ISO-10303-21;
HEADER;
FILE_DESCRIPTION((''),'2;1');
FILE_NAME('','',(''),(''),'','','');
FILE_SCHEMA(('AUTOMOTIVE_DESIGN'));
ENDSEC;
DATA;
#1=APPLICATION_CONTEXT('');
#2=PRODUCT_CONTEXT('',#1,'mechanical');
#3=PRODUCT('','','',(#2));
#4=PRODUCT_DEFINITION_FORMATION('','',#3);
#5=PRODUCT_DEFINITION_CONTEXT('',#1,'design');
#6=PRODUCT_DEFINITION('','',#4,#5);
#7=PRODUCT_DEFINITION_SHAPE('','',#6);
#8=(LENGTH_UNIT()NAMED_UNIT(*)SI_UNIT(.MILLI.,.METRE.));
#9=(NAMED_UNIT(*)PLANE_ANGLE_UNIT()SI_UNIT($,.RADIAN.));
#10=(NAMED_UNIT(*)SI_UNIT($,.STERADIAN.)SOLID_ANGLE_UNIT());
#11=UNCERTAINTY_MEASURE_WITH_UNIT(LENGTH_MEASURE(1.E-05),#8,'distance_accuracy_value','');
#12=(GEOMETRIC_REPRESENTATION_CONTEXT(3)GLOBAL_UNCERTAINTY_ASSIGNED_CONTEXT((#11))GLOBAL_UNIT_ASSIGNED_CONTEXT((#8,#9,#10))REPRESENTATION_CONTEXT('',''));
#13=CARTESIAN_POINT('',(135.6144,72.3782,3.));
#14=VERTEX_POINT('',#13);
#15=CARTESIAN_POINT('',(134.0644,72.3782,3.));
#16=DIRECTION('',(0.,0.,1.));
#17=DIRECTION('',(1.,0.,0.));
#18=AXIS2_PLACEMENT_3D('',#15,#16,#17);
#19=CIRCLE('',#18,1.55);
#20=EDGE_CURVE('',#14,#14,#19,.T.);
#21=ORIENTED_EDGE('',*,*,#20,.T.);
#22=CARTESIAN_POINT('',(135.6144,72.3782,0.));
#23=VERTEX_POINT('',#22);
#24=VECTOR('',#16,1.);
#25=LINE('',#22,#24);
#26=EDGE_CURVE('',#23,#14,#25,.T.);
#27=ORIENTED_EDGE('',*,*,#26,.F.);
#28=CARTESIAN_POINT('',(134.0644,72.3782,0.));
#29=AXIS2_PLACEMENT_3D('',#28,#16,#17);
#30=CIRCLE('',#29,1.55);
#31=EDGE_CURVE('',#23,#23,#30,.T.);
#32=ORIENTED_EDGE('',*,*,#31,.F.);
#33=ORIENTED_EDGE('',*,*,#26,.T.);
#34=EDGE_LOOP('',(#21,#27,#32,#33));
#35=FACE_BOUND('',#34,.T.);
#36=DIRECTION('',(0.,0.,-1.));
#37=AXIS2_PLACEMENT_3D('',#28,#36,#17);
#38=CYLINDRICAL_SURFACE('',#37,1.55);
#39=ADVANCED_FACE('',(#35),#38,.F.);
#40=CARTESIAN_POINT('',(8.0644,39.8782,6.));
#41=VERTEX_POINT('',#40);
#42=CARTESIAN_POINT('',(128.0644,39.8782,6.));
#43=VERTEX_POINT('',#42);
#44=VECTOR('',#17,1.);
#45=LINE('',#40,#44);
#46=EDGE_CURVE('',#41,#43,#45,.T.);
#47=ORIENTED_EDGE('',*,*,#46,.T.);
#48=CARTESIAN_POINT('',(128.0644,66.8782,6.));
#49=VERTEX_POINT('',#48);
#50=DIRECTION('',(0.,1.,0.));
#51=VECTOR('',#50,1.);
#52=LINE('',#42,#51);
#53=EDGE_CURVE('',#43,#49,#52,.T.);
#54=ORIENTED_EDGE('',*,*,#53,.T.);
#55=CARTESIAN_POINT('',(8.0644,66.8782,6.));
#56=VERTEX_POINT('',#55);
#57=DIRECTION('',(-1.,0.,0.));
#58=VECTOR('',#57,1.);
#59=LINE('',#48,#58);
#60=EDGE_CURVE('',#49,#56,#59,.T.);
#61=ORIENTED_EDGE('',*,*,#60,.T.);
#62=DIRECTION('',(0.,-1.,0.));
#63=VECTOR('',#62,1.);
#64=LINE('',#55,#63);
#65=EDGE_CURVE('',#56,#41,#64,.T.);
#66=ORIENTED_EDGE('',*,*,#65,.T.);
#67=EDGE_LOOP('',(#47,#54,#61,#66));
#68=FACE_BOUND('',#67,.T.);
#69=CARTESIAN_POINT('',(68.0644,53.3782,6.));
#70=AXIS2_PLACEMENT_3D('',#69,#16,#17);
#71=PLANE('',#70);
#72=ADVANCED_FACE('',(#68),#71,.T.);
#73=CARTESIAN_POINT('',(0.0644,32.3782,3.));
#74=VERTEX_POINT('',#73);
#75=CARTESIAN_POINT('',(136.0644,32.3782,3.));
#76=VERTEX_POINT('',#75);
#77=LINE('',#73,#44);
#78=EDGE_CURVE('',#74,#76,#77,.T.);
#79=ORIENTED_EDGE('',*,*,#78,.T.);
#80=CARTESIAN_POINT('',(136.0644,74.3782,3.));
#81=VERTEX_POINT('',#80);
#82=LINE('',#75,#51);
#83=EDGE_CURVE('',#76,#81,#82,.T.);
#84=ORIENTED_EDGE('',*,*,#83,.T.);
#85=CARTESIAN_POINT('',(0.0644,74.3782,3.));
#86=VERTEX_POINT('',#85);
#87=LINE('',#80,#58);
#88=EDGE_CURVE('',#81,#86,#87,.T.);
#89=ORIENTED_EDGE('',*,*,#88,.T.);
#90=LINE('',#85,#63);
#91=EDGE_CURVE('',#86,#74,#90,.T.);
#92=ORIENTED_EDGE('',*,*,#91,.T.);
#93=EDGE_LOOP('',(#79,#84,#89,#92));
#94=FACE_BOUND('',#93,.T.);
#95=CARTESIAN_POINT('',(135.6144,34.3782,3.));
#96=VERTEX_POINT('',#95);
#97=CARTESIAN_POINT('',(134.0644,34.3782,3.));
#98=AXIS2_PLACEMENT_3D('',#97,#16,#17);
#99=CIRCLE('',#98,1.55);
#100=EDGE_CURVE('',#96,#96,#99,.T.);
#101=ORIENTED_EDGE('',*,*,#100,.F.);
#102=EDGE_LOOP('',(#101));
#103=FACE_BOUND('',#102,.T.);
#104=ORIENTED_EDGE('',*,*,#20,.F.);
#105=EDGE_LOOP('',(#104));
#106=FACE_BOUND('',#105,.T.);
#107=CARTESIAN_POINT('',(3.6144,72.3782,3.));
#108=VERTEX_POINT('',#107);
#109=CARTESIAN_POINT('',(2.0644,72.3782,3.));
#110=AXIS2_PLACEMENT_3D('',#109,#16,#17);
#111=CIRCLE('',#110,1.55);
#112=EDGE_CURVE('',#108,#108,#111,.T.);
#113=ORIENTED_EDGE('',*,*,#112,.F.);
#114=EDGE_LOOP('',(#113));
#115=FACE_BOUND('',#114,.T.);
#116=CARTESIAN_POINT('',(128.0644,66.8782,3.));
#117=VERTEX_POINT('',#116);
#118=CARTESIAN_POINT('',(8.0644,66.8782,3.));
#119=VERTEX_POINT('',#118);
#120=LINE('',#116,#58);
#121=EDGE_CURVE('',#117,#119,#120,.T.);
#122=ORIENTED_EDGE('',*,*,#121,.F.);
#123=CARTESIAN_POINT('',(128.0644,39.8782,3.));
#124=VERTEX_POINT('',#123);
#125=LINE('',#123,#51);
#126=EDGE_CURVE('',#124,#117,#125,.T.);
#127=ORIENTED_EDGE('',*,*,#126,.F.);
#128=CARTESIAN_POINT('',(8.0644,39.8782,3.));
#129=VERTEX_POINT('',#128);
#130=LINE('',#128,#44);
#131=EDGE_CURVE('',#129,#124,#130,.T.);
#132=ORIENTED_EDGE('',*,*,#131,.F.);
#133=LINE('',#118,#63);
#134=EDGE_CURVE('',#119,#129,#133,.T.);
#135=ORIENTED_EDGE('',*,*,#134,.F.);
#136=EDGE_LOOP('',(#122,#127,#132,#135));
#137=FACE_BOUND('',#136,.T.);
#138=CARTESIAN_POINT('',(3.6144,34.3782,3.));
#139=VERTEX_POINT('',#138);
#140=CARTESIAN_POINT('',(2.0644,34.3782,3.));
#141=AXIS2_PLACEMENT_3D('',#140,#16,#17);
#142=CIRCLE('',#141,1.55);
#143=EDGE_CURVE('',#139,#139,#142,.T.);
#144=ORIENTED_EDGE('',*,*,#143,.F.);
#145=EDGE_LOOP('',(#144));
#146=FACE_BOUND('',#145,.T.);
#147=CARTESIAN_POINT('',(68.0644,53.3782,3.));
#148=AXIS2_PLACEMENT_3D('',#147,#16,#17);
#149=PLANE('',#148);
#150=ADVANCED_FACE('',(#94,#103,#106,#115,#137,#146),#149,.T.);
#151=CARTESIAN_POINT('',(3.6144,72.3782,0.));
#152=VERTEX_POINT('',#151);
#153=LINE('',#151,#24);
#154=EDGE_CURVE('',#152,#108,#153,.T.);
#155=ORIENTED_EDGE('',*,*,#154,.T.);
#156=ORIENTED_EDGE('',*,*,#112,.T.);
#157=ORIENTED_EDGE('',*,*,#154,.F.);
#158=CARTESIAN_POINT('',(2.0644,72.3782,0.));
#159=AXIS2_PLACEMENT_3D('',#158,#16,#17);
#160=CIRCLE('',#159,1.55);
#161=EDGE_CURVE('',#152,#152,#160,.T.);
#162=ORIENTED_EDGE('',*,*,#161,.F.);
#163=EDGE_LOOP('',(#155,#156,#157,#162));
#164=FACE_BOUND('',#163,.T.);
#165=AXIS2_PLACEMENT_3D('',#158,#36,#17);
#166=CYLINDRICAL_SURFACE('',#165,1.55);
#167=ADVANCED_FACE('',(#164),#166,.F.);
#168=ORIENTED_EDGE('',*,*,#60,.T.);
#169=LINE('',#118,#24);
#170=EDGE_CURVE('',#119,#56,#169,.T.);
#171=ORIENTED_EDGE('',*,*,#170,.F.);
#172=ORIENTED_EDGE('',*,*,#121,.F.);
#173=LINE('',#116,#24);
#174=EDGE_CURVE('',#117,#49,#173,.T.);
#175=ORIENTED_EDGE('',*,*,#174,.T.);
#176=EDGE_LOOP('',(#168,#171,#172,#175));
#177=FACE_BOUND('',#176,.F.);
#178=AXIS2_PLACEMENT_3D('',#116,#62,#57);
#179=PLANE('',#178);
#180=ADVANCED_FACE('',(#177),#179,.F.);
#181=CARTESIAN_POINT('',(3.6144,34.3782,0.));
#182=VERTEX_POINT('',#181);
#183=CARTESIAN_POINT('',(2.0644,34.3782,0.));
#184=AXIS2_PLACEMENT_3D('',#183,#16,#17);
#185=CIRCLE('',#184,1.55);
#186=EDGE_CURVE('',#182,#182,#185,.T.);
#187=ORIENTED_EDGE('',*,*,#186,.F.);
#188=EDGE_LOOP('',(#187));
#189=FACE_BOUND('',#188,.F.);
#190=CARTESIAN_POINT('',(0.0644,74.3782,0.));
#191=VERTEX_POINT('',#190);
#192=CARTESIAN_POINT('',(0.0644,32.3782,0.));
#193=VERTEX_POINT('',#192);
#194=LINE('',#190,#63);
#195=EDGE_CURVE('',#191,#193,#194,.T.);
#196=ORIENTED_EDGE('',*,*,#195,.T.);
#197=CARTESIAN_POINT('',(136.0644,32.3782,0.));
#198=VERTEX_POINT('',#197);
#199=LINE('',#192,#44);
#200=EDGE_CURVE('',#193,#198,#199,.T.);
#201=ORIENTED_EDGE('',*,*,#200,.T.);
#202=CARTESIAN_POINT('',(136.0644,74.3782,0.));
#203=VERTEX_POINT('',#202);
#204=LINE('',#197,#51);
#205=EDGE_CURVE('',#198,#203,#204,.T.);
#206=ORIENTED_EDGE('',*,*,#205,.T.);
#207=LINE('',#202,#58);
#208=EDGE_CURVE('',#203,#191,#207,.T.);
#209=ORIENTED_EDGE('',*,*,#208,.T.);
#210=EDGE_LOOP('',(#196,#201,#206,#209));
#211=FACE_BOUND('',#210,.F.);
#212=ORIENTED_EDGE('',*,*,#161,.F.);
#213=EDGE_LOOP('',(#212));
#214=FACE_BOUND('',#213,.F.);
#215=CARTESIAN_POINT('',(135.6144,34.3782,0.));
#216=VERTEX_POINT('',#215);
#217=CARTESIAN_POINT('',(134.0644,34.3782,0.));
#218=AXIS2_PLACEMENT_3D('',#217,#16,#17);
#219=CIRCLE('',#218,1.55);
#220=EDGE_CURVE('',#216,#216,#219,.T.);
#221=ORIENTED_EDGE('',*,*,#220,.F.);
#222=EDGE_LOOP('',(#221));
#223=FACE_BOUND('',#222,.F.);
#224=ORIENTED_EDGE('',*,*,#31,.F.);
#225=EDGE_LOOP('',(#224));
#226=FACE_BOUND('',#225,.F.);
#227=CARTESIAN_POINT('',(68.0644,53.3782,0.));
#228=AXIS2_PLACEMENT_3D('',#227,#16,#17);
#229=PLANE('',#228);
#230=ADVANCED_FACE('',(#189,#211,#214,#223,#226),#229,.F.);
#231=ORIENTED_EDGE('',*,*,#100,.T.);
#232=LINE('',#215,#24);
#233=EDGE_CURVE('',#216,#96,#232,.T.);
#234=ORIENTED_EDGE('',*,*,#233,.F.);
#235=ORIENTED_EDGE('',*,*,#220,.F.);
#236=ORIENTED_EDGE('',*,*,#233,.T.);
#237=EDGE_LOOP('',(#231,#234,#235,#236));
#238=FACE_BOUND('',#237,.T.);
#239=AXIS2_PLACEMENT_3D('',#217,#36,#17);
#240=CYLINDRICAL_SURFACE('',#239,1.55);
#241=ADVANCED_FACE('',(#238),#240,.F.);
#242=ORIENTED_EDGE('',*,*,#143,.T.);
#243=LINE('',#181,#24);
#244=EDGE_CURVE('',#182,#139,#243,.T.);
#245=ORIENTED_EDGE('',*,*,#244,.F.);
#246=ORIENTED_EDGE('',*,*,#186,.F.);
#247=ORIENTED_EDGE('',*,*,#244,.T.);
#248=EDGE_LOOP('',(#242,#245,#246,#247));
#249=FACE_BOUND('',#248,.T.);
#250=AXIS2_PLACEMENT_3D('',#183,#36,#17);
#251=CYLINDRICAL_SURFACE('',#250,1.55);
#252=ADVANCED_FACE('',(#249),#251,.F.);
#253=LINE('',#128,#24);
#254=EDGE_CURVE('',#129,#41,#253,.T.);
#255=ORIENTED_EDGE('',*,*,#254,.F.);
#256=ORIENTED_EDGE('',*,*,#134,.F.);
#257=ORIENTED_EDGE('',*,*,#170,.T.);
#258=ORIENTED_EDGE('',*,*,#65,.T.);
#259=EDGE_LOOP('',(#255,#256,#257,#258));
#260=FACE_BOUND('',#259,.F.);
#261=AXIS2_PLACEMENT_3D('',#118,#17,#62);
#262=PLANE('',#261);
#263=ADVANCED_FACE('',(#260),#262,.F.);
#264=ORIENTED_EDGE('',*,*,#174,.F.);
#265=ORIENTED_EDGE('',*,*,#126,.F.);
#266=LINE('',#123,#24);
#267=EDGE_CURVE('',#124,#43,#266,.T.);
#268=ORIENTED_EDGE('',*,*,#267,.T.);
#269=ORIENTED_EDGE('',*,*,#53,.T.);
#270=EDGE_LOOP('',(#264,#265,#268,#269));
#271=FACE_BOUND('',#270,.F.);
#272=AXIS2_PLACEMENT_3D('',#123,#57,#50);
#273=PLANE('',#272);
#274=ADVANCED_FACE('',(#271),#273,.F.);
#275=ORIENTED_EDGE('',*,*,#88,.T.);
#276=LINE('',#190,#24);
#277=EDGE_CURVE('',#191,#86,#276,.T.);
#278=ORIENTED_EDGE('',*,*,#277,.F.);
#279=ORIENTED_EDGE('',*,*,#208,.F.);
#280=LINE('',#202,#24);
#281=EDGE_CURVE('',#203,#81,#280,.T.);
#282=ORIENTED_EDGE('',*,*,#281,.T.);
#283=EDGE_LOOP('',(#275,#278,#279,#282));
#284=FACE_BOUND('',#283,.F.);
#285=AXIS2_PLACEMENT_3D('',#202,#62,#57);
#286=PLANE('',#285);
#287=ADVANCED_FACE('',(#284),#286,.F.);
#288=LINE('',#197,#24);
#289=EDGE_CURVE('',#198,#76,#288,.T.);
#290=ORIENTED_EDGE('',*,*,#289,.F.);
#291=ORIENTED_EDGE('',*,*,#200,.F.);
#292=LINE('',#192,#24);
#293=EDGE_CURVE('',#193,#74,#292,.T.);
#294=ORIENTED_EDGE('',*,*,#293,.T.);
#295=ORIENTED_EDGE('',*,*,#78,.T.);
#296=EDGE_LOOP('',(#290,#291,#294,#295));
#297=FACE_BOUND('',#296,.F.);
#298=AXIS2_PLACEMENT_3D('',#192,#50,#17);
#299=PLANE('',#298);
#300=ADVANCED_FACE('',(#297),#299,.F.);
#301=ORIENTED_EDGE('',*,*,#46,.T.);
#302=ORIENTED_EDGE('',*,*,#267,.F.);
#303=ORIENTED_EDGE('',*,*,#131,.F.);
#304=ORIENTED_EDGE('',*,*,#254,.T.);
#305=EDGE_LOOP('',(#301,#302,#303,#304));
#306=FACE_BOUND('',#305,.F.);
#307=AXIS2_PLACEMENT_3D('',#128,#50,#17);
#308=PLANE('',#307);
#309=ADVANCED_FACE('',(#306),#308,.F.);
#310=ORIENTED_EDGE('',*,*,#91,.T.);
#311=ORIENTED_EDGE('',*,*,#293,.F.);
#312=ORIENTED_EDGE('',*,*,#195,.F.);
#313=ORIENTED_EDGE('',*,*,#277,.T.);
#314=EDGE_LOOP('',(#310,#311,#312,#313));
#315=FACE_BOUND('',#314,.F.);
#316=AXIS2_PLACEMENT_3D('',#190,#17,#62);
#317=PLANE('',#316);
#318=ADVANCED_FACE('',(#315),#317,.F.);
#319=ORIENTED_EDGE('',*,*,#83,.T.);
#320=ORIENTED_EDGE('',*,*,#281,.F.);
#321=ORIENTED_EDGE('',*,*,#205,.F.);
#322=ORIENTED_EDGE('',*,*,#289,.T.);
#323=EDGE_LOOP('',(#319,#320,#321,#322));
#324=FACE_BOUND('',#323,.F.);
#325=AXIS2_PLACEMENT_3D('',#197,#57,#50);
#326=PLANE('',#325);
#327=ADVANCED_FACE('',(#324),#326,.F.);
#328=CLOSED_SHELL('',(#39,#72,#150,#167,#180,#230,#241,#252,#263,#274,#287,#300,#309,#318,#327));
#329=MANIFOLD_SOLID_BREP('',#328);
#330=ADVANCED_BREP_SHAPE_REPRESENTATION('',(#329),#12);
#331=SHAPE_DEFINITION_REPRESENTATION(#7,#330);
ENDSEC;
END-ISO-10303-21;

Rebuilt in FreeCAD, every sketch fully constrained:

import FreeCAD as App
import Part
import Sketcher

V = App.Vector
Q = App.Units.Quantity

doc = App.newDocument("Part")
body = doc.addObject("PartDesign::Body", "Body")

# Sketch on XY plane
sketch1 = body.newObject("Sketcher::SketchObject", "Sketch")
sketch1.AttachmentSupport = (doc.getObject("XY_Plane"), [""])
sketch1.MapMode = "FlatFace"
sketch1.addGeometry([
    Part.LineSegment(V(136.1, 32.4, 0), V(136.1, 74.4, 0)),  # 0
    Part.LineSegment(V(136.1, 74.4, 0), V(0.1, 74.4, 0)),  # 1
    Part.LineSegment(V(0.1, 74.4, 0), V(0.1, 32.4, 0)),  # 2
    Part.LineSegment(V(0.1, 32.4, 0), V(136.1, 32.4, 0)),  # 3
    Part.Circle(V(2.1, 34.4, 0), V(0, 0, 1), 1.6),  # 4
    Part.Circle(V(134.1, 34.4, 0), V(0, 0, 1), 1.6),  # 5
    Part.Circle(V(2.1, 72.4, 0), V(0, 0, 1), 1.6),  # 6
    Part.Circle(V(134.1, 72.4, 0), V(0, 0, 1), 1.6),  # 7
], False)
sketch1.addConstraint([
    Sketcher.Constraint("Coincident", 0, 2, 1, 1),
    Sketcher.Constraint("Coincident", 1, 2, 2, 1),
    Sketcher.Constraint("Coincident", 2, 2, 3, 1),
    Sketcher.Constraint("Coincident", 3, 2, 0, 1),
    Sketcher.Constraint("Vertical", 0),
    Sketcher.Constraint("Horizontal", 1),
    Sketcher.Constraint("Vertical", 2),
    Sketcher.Constraint("Horizontal", 3),
    Sketcher.Constraint("Equal", 4, 5),
    Sketcher.Constraint("Equal", 5, 6),
    Sketcher.Constraint("Equal", 6, 7),
    Sketcher.Constraint("Horizontal", 4, 3, 5, 3),
    Sketcher.Constraint("Horizontal", 6, 3, 7, 3),
    Sketcher.Constraint("Vertical", 4, 3, 6, 3),
    Sketcher.Constraint("Vertical", 5, 3, 7, 3),
    Sketcher.Constraint("Diameter", 4, Q("3.1 mm")),
    Sketcher.Constraint("DistanceX", 1, 2, 1, 1, Q("136 mm")),
    Sketcher.Constraint("DistanceY", 0, 1, 0, 2, Q("42 mm")),
    Sketcher.Constraint("DistanceX", 4, 3, 5, 3, Q("132 mm")),
    Sketcher.Constraint("DistanceY", 4, 3, 6, 3, Q("38 mm")),
    Sketcher.Constraint("DistanceX", 7, 3, 0, 2, Q("2 mm")),
    Sketcher.Constraint("DistanceY", 7, 3, 0, 2, Q("2 mm")),
    Sketcher.Constraint("DistanceX", -1, 1, 4, 3, Q("2.0644 mm")),
    Sketcher.Constraint("DistanceY", -1, 1, 4, 3, Q("34.3782 mm")),
])
pad1 = body.newObject("PartDesign::Pad", "Pad")
pad1.Profile = sketch1
pad1.Length = 3

# Sketch on XY plane
sketch2 = body.newObject("Sketcher::SketchObject", "Sketch001")
sketch2.AttachmentSupport = (doc.getObject("XY_Plane"), [""])
sketch2.MapMode = "FlatFace"
sketch2.AttachmentOffset = App.Placement(V(0, 0, 3), App.Rotation())
sketch2.addGeometry([
    Part.LineSegment(V(8, 40, 0), V(128, 40, 0)),
    Part.LineSegment(V(128, 40, 0), V(128, 67, 0)),
    Part.LineSegment(V(128, 67, 0), V(8, 67, 0)),
    Part.LineSegment(V(8, 67, 0), V(8, 40, 0)),
], False)
sketch2.addConstraint([
    Sketcher.Constraint("Coincident", 0, 2, 1, 1),
    Sketcher.Constraint("Coincident", 1, 2, 2, 1),
    Sketcher.Constraint("Coincident", 2, 2, 3, 1),
    Sketcher.Constraint("Coincident", 3, 2, 0, 1),
    Sketcher.Constraint("Horizontal", 0),
    Sketcher.Constraint("Vertical", 1),
    Sketcher.Constraint("Horizontal", 2),
    Sketcher.Constraint("Vertical", 3),
    Sketcher.Constraint("DistanceX", 0, 1, 0, 2, Q("120 mm")),
    Sketcher.Constraint("DistanceY", 1, 1, 1, 2, Q("27 mm")),
    Sketcher.Constraint("DistanceX", -1, 1, 0, 2, Q("128.0644 mm")),
    Sketcher.Constraint("DistanceY", -1, 1, 0, 2, Q("39.8782 mm")),
])
pad2 = body.newObject("PartDesign::Pad", "Pad001")
pad2.Profile = sketch2
pad2.Length = 3

doc.recompute()
